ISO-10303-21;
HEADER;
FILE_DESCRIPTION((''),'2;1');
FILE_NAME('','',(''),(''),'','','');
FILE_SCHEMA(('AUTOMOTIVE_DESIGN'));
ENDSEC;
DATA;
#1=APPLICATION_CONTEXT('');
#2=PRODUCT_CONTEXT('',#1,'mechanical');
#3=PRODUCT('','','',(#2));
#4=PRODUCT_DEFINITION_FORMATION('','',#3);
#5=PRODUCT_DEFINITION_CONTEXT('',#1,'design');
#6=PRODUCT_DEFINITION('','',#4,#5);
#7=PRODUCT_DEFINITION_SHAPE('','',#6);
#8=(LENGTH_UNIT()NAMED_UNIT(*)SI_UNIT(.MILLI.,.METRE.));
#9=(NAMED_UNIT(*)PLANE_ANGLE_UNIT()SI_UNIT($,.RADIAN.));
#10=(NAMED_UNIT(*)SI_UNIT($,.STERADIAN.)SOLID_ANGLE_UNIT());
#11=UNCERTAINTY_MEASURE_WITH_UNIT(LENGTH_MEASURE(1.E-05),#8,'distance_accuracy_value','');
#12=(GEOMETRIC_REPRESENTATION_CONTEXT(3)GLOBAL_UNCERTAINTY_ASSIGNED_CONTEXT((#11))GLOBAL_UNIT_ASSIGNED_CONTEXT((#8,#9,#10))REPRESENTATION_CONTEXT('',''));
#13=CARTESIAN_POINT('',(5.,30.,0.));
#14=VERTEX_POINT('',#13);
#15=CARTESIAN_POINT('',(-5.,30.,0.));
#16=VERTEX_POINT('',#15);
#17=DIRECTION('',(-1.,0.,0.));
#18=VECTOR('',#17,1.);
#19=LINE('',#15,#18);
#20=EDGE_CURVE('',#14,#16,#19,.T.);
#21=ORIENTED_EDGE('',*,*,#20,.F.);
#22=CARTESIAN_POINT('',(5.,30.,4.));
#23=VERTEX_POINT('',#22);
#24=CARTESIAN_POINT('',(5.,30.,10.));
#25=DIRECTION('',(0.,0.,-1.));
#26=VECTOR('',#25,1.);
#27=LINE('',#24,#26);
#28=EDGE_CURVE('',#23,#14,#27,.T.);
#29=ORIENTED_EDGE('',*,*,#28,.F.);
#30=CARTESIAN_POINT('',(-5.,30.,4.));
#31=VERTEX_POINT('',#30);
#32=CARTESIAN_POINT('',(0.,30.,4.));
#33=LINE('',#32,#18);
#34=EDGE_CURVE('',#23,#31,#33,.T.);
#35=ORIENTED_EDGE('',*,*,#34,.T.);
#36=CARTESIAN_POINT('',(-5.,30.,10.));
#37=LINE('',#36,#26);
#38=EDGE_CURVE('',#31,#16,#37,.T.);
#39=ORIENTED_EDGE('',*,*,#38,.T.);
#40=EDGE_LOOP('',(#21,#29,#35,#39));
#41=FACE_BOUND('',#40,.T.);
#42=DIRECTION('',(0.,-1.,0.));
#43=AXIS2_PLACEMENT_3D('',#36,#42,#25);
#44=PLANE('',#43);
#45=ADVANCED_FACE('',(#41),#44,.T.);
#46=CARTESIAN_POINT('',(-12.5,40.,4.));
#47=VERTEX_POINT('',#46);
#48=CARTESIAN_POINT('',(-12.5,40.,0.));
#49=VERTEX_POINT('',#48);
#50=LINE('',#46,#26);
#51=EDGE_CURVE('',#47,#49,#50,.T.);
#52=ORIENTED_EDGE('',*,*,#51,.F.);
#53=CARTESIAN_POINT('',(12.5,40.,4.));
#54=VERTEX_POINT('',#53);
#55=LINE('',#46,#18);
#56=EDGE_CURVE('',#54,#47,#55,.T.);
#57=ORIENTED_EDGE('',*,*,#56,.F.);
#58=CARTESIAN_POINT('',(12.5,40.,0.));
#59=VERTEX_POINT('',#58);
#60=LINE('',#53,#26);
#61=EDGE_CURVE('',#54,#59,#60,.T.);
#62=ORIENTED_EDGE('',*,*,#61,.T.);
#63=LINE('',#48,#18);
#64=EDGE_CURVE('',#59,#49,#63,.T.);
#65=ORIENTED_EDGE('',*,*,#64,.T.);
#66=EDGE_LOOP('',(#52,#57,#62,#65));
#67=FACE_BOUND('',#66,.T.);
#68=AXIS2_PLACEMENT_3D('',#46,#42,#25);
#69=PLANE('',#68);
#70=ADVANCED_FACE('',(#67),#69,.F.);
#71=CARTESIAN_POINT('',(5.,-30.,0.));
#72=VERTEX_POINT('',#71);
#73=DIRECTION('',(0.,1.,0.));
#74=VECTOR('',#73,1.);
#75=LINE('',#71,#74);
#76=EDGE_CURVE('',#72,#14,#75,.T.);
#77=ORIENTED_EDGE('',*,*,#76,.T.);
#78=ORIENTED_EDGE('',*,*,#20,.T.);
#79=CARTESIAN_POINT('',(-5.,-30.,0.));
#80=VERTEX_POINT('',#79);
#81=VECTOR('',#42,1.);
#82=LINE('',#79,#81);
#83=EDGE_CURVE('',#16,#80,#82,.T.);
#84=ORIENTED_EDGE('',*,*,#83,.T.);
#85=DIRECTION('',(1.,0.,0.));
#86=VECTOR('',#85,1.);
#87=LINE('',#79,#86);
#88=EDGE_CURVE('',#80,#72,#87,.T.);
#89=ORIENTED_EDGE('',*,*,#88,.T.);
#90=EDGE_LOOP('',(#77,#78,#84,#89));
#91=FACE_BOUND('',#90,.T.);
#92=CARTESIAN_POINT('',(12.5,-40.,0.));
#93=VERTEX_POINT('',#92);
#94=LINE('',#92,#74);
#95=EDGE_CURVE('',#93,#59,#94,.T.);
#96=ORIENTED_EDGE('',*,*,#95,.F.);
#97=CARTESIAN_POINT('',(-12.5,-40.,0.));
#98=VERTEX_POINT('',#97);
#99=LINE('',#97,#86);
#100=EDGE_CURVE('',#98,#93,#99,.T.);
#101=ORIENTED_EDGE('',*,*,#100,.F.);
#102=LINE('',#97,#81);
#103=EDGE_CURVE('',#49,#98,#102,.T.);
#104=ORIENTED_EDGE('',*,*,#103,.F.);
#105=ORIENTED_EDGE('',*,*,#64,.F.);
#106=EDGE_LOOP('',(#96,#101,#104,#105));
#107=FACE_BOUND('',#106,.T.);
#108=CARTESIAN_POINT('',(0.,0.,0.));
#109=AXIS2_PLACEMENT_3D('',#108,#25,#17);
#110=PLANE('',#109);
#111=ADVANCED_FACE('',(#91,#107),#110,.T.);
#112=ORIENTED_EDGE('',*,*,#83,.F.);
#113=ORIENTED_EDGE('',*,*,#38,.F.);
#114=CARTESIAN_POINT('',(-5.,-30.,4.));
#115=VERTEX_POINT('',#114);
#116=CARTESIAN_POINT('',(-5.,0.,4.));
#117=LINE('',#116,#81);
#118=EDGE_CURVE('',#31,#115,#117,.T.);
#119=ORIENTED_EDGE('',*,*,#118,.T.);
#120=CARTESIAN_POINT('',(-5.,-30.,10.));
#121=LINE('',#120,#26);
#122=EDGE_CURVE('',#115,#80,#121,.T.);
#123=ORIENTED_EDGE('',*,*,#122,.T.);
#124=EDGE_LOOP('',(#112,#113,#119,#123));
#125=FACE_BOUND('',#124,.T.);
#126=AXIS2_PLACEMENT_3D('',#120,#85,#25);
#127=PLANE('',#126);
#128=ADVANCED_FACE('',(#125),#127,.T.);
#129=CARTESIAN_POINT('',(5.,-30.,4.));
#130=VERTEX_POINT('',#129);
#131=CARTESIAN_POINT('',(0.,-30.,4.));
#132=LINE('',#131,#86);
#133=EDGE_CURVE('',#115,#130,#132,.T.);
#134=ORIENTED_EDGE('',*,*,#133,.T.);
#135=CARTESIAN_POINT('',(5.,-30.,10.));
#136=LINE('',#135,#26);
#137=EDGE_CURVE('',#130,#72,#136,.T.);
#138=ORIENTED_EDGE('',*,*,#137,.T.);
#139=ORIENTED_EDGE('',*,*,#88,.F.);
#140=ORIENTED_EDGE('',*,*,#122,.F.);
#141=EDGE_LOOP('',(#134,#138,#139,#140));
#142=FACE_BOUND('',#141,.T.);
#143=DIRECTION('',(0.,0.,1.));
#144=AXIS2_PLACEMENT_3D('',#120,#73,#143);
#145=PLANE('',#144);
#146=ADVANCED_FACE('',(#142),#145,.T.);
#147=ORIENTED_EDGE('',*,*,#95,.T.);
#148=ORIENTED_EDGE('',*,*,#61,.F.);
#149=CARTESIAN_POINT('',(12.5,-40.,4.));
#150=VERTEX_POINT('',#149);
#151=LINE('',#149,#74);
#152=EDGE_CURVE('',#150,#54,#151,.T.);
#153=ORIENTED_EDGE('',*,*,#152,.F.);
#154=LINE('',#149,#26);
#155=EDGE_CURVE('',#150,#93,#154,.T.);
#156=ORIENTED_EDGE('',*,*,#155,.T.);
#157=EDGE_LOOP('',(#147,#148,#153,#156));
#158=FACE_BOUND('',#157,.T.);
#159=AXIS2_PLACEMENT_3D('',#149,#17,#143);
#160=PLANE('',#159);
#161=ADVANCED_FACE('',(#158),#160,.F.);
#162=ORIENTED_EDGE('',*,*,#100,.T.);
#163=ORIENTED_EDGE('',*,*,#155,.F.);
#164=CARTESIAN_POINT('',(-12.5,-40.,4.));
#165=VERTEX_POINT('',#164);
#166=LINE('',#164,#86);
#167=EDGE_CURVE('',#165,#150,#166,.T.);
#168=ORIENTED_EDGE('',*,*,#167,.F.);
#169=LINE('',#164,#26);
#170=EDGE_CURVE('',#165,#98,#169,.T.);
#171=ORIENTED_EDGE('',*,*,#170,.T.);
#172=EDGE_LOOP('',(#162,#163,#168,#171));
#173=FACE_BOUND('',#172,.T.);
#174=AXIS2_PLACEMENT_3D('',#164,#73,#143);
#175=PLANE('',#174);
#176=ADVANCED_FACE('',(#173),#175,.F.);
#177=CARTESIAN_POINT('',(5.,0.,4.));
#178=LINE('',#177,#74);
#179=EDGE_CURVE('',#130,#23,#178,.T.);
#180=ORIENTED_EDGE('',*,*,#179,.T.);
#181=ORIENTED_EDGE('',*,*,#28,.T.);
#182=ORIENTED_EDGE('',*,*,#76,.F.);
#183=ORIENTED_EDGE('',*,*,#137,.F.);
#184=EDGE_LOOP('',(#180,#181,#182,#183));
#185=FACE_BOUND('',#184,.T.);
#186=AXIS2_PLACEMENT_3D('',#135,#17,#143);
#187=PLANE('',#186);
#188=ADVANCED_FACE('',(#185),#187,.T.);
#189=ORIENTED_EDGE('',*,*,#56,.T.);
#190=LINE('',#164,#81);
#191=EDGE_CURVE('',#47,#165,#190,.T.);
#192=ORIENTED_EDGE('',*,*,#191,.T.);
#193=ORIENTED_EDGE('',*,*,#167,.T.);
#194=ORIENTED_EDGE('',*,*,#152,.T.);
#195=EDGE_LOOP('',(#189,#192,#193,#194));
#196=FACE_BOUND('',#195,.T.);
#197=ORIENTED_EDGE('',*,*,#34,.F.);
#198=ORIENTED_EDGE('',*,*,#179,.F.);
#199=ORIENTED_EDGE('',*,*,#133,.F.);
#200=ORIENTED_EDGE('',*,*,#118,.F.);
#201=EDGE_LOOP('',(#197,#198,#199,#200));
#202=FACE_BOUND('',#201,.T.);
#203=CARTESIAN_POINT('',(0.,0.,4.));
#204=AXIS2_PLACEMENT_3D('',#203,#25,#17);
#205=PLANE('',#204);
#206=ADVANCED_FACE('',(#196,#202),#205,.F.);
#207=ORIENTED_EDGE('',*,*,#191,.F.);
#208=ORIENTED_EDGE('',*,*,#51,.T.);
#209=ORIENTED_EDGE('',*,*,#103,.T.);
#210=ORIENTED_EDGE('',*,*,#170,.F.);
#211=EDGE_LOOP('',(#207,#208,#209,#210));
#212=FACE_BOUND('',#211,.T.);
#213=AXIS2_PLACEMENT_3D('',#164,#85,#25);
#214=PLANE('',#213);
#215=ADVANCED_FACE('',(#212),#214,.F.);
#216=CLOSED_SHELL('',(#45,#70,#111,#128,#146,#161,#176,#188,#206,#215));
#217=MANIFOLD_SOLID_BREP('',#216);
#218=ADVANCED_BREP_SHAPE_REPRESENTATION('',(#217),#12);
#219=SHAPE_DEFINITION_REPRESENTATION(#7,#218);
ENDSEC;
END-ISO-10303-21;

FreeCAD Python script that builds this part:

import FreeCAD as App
import Part
import Sketcher
Q = App.Units.Quantity

doc = App.newDocument("Part")
body = doc.addObject("PartDesign::Body", "Body")

# Sketch on XY plane
sketch1 = body.newObject("Sketcher::SketchObject", "Sketch")
sketch1.AttachmentSupport = (doc.getObject("XY_Plane"), [""])
sketch1.MapMode = "FlatFace"
sketch1.addGeometry(Part.LineSegment(App.Vector(-12, 40, 0), App.Vector(-12, -40, 0)), False)
sketch1.addGeometry(Part.LineSegment(App.Vector(-12, -40, 0), App.Vector(12, -40, 0)), False)
sketch1.addGeometry(Part.LineSegment(App.Vector(12, -40, 0), App.Vector(12, 40, 0)), False)
sketch1.addGeometry(Part.LineSegment(App.Vector(12, 40, 0), App.Vector(-12, 40, 0)), False)
sketch1.addConstraint(Sketcher.Constraint("Coincident", 0, 2, 1, 1))
sketch1.addConstraint(Sketcher.Constraint("Coincident", 1, 2, 2, 1))
sketch1.addConstraint(Sketcher.Constraint("Coincident", 2, 2, 3, 1))
sketch1.addConstraint(Sketcher.Constraint("Coincident", 3, 2, 0, 1))
sketch1.addConstraint(Sketcher.Constraint("Vertical", 0))
sketch1.addConstraint(Sketcher.Constraint("Horizontal", 1))
sketch1.addConstraint(Sketcher.Constraint("Vertical", 2))
sketch1.addConstraint(Sketcher.Constraint("Horizontal", 3))
sketch1.addConstraint(Sketcher.Constraint("Symmetric", 0, 2, 2, 2, -1, 1))
sketch1.addConstraint(Sketcher.Constraint("DistanceX", 1, 1, 1, 2, Q("25 mm")))
sketch1.addConstraint(Sketcher.Constraint("DistanceY", 0, 2, 0, 1, Q("80 mm")))
pad1 = body.newObject("PartDesign::Pad", "Pad")
pad1.Profile = sketch1
pad1.Length = 4

# Sketch on XY plane
sketch2 = body.newObject("Sketcher::SketchObject", "Sketch001")
sketch2.AttachmentSupport = (doc.getObject("XY_Plane"), [""])
sketch2.MapMode = "FlatFace"
sketch2.addGeometry(Part.LineSegment(App.Vector(-5, 30, 0), App.Vector(-5, -30, 0)), False)
sketch2.addGeometry(Part.LineSegment(App.Vector(-5, -30, 0), App.Vector(5, -30, 0)), False)
sketch2.addGeometry(Part.LineSegment(App.Vector(5, -30, 0), App.Vector(5, 30, 0)), False)
sketch2.addGeometry(Part.LineSegment(App.Vector(5, 30, 0), App.Vector(-5, 30, 0)), False)
sketch2.addConstraint(Sketcher.Constraint("Coincident", 0, 2, 1, 1))
sketch2.addConstraint(Sketcher.Constraint("Coincident", 1, 2, 2, 1))
sketch2.addConstraint(Sketcher.Constraint("Coincident", 2, 2, 3, 1))
sketch2.addConstraint(Sketcher.Constraint("Coincident", 3, 2, 0, 1))
sketch2.addConstraint(Sketcher.Constraint("Vertical", 0))
sketch2.addConstraint(Sketcher.Constraint("Horizontal", 1))
sketch2.addConstraint(Sketcher.Constraint("Vertical", 2))
sketch2.addConstraint(Sketcher.Constraint("Horizontal", 3))
sketch2.addConstraint(Sketcher.Constraint("Symmetric", 0, 2, 2, 2, -1, 1))
sketch2.addConstraint(Sketcher.Constraint("DistanceX", 1, 1, 1, 2, Q("10 mm")))
sketch2.addConstraint(Sketcher.Constraint("DistanceY", 0, 2, 0, 1, Q("60 mm")))
pocket1 = body.newObject("PartDesign::Pocket", "Pocket")
pocket1.Profile = sketch2
pocket1.Length = 10
pocket1.Reversed = True

doc.recompute()
